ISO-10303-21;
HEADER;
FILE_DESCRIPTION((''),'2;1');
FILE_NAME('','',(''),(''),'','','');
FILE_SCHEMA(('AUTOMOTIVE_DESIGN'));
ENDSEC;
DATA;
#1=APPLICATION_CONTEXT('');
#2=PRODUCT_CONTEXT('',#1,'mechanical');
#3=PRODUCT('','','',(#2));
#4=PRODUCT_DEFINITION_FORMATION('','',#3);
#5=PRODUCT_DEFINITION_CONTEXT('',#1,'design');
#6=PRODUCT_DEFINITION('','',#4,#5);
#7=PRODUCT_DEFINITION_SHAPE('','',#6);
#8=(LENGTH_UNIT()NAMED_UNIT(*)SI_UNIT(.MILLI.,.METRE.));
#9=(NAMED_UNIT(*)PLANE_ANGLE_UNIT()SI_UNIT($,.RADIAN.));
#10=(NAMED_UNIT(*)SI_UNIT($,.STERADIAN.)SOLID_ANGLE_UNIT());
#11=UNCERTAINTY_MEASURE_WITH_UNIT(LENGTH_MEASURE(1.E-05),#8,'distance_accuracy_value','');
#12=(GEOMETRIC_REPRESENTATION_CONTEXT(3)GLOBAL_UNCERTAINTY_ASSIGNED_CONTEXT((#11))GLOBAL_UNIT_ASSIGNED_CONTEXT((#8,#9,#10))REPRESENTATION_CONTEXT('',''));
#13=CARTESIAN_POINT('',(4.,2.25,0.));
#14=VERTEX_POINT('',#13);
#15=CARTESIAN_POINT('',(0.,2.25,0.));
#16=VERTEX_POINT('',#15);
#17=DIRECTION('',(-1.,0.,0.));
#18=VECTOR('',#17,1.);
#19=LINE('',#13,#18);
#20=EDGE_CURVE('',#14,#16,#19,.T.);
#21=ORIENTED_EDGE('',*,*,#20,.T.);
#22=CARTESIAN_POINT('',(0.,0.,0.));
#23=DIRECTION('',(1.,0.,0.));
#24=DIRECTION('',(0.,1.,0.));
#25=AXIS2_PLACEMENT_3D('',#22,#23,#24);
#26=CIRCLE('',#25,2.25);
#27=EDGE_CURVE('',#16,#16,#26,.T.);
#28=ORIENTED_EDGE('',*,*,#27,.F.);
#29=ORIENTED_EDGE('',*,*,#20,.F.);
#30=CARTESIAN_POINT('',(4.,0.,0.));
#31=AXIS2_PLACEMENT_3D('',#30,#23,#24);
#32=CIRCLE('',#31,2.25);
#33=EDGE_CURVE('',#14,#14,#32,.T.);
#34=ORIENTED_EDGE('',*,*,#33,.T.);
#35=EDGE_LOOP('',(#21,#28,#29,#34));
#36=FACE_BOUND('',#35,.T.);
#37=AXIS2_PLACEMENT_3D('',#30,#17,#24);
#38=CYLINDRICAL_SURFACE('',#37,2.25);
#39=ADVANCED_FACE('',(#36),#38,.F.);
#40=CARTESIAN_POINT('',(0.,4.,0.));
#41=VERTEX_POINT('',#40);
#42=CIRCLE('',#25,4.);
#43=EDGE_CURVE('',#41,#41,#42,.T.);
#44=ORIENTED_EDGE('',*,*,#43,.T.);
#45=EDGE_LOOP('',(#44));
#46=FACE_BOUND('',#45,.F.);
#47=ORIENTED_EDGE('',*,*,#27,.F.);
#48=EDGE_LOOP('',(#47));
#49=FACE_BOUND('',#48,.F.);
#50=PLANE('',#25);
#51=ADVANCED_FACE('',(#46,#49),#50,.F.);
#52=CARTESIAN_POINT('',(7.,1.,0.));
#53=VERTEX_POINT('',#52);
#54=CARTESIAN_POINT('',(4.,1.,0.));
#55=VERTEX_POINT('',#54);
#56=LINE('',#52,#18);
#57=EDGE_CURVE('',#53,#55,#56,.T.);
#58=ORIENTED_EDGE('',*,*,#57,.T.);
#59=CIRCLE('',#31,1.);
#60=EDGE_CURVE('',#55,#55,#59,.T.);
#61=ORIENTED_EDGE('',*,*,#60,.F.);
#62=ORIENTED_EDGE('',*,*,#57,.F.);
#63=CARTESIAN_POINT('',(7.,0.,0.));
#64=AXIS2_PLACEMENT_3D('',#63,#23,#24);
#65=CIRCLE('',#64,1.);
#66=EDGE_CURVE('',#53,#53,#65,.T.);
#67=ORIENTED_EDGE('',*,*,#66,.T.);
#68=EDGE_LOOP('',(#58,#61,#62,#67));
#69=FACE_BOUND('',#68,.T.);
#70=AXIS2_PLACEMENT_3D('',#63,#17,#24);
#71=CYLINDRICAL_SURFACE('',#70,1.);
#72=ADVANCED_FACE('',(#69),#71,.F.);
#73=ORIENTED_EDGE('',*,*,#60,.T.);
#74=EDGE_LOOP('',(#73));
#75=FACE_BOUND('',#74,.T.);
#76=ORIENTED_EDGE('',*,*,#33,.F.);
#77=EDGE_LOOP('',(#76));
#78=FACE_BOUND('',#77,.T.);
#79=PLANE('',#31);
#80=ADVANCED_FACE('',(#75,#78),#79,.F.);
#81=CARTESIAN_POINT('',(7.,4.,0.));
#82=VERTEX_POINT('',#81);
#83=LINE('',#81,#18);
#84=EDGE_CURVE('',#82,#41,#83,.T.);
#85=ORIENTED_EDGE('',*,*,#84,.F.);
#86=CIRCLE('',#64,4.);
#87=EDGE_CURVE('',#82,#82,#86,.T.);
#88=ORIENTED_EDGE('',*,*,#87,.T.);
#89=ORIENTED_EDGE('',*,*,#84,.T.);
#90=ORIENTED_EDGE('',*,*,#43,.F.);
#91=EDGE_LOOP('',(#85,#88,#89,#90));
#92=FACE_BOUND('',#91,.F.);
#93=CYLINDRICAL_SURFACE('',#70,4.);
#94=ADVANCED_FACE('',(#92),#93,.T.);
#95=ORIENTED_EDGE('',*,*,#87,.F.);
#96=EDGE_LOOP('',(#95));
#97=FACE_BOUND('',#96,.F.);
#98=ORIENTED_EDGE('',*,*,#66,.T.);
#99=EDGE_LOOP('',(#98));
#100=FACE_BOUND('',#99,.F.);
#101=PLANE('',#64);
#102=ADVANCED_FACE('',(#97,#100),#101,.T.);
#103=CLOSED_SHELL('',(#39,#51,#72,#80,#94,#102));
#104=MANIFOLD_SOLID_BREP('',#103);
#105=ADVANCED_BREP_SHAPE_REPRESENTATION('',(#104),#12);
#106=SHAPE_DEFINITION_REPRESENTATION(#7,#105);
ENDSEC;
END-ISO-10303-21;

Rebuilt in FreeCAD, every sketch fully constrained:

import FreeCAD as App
import Part
import Sketcher

V = App.Vector


def add_polygon(sketch, points):
    """Adds a closed chain of lines whose ends are joined by coincident constraints."""
    first, n = sketch.GeometryCount, len(points)
    for a, b in zip(points, points[1:] + points[:1]):
        sketch.addGeometry(Part.LineSegment(App.Vector(*a, 0), App.Vector(*b, 0)), False)
    for i in range(n):
        sketch.addConstraint(Sketcher.Constraint("Coincident", first + i, 2, first + (i + 1) % n, 1))

doc = App.newDocument("Part")
body = doc.addObject("PartDesign::Body", "Body")

sketch1 = body.newObject("Sketcher::SketchObject", "Sketch")
sketch1.AttachmentSupport = (doc.getObject("XY_Plane"), [""])
sketch1.MapMode = "FlatFace"
add_polygon(sketch1, [(0, 4), (0, 2.2), (4, 2.2), (4, 1), (7, 1), (7, 4)])
sketch1.addConstraint([
    Sketcher.Constraint("Vertical", 0),
    Sketcher.Constraint("Horizontal", 1),
    Sketcher.Constraint("Vertical", 2),
    Sketcher.Constraint("Horizontal", 3),
    Sketcher.Constraint("Vertical", 4),
    Sketcher.Constraint("Horizontal", 5),
    Sketcher.Constraint("PointOnObject", 0, 2, -2),
    Sketcher.Constraint("Equal", 3, 4),
    Sketcher.Constraint("DistanceX", 1, 1, 1, 2, 4.0),
    Sketcher.Constraint("DistanceX", 3, 1, 3, 2, 3.0),
    Sketcher.Constraint("DistanceY", -1, 1, 2, 2, 1.0),
    Sketcher.Constraint("DistanceY", -1, 1, 0, 2, 2.25),
])
revolution = body.newObject("PartDesign::Revolution", "Revolution")
revolution.Profile = sketch1
revolution.ReferenceAxis = (sketch1, ["H_Axis"])
revolution.Angle = 360

doc.recompute()
